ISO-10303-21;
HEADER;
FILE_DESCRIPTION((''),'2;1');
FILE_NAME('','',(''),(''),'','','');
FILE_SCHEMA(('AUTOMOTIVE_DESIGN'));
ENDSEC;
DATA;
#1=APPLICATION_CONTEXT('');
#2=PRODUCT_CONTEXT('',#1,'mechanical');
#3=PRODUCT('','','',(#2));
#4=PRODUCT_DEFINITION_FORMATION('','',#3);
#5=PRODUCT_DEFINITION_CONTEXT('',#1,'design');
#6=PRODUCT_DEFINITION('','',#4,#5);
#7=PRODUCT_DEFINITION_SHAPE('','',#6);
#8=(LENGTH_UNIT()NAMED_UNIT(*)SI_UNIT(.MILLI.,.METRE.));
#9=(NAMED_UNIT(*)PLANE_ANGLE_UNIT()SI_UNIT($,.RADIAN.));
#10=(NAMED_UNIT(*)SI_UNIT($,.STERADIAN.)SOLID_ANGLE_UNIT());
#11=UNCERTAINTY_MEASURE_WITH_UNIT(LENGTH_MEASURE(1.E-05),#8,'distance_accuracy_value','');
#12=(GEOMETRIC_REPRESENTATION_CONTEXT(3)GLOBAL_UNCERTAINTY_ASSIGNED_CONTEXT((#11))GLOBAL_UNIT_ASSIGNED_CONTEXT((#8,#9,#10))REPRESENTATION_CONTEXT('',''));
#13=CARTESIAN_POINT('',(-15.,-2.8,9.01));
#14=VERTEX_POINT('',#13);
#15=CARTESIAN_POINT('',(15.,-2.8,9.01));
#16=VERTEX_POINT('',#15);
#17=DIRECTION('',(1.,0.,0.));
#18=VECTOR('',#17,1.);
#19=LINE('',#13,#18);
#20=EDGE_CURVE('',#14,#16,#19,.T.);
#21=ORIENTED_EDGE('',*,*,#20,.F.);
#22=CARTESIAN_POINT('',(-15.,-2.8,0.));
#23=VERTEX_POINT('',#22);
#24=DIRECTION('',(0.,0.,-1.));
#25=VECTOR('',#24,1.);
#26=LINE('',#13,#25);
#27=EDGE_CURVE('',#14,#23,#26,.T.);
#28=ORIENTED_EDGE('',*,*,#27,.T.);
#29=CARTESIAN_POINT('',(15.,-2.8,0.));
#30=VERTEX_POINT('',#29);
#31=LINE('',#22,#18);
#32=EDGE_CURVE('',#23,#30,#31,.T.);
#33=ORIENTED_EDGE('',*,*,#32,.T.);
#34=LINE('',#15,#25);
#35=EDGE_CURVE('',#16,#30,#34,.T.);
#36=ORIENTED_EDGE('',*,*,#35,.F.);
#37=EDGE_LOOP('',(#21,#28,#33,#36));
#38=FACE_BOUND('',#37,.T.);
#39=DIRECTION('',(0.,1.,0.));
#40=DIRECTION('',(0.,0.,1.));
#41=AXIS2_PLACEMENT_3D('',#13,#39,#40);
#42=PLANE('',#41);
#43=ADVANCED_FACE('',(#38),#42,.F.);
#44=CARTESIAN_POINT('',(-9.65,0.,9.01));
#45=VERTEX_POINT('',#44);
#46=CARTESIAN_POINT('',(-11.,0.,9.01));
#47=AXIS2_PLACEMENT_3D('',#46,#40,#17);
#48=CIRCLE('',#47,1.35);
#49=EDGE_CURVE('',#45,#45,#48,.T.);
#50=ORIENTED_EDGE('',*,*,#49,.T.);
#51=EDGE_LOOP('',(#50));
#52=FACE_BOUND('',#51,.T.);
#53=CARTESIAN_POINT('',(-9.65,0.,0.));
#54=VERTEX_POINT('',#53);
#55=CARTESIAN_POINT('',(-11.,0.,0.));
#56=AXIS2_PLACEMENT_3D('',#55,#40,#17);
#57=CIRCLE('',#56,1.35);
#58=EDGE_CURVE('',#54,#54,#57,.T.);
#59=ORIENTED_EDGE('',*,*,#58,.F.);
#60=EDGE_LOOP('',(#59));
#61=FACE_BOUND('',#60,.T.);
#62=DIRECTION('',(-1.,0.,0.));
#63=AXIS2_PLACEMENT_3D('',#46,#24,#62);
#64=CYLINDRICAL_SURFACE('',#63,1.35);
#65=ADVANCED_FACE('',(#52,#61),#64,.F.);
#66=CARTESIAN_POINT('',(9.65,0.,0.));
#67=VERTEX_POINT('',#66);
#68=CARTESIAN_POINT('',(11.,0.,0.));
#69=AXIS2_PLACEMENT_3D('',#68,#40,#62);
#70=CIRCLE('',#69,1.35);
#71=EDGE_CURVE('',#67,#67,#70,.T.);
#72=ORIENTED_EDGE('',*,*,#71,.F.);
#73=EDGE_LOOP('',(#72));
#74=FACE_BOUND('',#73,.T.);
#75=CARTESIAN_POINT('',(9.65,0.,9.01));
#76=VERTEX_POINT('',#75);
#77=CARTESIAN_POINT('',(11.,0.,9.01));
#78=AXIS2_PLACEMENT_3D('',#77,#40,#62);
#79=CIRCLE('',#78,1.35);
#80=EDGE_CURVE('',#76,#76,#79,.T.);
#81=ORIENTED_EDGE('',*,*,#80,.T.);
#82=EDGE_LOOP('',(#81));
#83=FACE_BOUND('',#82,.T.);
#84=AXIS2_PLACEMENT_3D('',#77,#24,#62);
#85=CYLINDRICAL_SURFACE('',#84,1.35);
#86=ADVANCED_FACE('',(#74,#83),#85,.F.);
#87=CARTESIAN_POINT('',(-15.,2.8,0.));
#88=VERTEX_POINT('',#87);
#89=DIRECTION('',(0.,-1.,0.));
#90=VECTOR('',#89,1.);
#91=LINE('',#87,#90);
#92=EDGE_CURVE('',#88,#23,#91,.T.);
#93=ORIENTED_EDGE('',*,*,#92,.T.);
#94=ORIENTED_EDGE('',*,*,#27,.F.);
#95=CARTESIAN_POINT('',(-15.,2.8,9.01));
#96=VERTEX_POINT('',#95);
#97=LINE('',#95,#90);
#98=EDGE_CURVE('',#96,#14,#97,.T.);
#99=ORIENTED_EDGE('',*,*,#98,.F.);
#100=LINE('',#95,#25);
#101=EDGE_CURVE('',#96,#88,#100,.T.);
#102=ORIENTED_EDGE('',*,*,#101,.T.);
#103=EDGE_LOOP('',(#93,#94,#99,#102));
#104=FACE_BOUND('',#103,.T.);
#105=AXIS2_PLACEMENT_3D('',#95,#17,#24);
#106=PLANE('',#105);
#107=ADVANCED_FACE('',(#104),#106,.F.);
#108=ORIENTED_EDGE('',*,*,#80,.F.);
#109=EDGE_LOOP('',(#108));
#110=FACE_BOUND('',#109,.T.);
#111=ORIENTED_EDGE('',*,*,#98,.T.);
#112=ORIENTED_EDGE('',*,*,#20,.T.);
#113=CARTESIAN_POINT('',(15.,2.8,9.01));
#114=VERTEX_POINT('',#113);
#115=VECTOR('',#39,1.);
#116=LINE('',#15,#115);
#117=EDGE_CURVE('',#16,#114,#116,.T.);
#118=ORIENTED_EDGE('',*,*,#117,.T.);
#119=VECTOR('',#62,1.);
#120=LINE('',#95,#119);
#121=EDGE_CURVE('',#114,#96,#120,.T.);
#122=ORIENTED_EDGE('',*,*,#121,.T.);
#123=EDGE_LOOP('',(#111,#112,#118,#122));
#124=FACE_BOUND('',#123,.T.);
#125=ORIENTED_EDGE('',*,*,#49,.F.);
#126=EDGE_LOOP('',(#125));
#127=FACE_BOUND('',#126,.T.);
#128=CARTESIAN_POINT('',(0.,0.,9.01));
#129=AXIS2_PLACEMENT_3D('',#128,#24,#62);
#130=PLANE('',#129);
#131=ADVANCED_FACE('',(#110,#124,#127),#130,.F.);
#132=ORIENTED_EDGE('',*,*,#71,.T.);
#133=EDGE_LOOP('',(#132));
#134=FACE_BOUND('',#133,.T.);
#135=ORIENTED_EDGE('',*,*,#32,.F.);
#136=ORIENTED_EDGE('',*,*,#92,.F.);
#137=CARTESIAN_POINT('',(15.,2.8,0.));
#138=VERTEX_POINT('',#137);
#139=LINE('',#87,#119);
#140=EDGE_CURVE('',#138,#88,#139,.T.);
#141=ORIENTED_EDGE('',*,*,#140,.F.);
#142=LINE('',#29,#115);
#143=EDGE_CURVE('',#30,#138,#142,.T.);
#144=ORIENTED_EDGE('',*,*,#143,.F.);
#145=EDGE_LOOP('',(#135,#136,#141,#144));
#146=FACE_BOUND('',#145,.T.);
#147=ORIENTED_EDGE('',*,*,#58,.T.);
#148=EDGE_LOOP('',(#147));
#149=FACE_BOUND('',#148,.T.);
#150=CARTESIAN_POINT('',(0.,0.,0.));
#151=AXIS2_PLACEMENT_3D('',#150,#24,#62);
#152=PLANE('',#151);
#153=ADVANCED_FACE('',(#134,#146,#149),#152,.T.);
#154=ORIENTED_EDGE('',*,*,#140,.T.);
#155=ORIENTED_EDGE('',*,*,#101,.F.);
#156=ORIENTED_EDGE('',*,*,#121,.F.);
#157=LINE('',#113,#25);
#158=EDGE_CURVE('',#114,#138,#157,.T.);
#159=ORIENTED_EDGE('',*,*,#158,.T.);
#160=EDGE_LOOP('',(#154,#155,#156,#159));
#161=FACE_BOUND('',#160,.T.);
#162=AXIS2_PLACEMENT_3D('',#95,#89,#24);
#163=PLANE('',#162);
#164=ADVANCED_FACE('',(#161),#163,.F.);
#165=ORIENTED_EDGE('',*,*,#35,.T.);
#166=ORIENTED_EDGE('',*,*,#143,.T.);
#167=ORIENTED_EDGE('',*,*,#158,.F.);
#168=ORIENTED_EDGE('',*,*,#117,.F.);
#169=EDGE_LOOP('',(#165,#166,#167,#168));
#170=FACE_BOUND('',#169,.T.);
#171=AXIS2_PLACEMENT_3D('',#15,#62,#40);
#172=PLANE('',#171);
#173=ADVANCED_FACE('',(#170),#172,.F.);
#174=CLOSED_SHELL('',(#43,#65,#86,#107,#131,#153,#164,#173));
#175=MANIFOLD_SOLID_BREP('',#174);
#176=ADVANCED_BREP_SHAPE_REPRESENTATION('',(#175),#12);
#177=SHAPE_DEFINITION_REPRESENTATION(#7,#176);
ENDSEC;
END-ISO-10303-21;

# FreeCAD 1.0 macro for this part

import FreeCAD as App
import Part
import Sketcher


def add_polygon(sketch, points):
    """Adds a closed chain of lines whose ends are joined by coincident constraints."""
    first, n = sketch.GeometryCount, len(points)
    for a, b in zip(points, points[1:] + points[:1]):
        sketch.addGeometry(Part.LineSegment(App.Vector(*a, 0), App.Vector(*b, 0)), False)
    for i in range(n):
        sketch.addConstraint(Sketcher.Constraint("Coincident", first + i, 2, first + (i + 1) % n, 1))

doc = App.newDocument("Part")
params = doc.addObject("Spreadsheet::Sheet", "Params")
for row, (alias, value) in enumerate([
    ("sketch1_diameter", "2.7 mm"),
    ("sketch1_width", "30 mm"),
    ("sketch1_height", "5.6 mm"),
    ("pad1_length", "9.01 mm"),
], start=1):
    params.set(f"A{row}", alias)
    params.set(f"B{row}", "=" + value)
    params.setAlias(f"B{row}", alias)

body = doc.addObject("PartDesign::Body", "Body")

sketch1 = body.newObject("Sketcher::SketchObject", "Sketch")
sketch1.AttachmentSupport = (doc.getObject("XY_Plane"), [""])
sketch1.MapMode = "FlatFace"
add_polygon(sketch1, [(-15, 2.8), (-15, -2.8), (15, -2.8), (15, 2.8)])
sketch1.addGeometry(Part.Circle(App.Vector(-11, 0, 0), App.Vector(0, 0, 1), 1.4), False)
sketch1.addGeometry(Part.Circle(App.Vector(11, 0, 0), App.Vector(0, 0, 1), 1.4), False)
sketch1.addConstraint([
    Sketcher.Constraint("Vertical", 0),
    Sketcher.Constraint("Horizontal", 1),
    Sketcher.Constraint("Vertical", 2),
    Sketcher.Constraint("Horizontal", 3),
    Sketcher.Constraint("Equal", 4, 5),
    Sketcher.Constraint("Symmetric", 4, 3, 5, 3, -1, 1),
    Sketcher.Constraint("Symmetric", 0, 2, 2, 2, -1, 1),
    Sketcher.Constraint("PointOnObject", 4, 3, -1),
    Sketcher.Constraint("Diameter", 4, 2.7),
    Sketcher.Constraint("DistanceX", 1, 1, 1, 2, 30.0),
    Sketcher.Constraint("DistanceY", 0, 2, 0, 1, 5.6),
    Sketcher.Constraint("DistanceX", 4, 3, -1, 1, 11.0),
])
sketch1.setExpression("Constraints[12]", "Params.sketch1_diameter")
sketch1.setExpression("Constraints[13]", "Params.sketch1_width")
sketch1.setExpression("Constraints[14]", "Params.sketch1_height")
pad1 = body.newObject("PartDesign::Pad", "Pad")
pad1.Profile = sketch1
pad1.setExpression("Length", "Params.pad1_length")

doc.recompute()
